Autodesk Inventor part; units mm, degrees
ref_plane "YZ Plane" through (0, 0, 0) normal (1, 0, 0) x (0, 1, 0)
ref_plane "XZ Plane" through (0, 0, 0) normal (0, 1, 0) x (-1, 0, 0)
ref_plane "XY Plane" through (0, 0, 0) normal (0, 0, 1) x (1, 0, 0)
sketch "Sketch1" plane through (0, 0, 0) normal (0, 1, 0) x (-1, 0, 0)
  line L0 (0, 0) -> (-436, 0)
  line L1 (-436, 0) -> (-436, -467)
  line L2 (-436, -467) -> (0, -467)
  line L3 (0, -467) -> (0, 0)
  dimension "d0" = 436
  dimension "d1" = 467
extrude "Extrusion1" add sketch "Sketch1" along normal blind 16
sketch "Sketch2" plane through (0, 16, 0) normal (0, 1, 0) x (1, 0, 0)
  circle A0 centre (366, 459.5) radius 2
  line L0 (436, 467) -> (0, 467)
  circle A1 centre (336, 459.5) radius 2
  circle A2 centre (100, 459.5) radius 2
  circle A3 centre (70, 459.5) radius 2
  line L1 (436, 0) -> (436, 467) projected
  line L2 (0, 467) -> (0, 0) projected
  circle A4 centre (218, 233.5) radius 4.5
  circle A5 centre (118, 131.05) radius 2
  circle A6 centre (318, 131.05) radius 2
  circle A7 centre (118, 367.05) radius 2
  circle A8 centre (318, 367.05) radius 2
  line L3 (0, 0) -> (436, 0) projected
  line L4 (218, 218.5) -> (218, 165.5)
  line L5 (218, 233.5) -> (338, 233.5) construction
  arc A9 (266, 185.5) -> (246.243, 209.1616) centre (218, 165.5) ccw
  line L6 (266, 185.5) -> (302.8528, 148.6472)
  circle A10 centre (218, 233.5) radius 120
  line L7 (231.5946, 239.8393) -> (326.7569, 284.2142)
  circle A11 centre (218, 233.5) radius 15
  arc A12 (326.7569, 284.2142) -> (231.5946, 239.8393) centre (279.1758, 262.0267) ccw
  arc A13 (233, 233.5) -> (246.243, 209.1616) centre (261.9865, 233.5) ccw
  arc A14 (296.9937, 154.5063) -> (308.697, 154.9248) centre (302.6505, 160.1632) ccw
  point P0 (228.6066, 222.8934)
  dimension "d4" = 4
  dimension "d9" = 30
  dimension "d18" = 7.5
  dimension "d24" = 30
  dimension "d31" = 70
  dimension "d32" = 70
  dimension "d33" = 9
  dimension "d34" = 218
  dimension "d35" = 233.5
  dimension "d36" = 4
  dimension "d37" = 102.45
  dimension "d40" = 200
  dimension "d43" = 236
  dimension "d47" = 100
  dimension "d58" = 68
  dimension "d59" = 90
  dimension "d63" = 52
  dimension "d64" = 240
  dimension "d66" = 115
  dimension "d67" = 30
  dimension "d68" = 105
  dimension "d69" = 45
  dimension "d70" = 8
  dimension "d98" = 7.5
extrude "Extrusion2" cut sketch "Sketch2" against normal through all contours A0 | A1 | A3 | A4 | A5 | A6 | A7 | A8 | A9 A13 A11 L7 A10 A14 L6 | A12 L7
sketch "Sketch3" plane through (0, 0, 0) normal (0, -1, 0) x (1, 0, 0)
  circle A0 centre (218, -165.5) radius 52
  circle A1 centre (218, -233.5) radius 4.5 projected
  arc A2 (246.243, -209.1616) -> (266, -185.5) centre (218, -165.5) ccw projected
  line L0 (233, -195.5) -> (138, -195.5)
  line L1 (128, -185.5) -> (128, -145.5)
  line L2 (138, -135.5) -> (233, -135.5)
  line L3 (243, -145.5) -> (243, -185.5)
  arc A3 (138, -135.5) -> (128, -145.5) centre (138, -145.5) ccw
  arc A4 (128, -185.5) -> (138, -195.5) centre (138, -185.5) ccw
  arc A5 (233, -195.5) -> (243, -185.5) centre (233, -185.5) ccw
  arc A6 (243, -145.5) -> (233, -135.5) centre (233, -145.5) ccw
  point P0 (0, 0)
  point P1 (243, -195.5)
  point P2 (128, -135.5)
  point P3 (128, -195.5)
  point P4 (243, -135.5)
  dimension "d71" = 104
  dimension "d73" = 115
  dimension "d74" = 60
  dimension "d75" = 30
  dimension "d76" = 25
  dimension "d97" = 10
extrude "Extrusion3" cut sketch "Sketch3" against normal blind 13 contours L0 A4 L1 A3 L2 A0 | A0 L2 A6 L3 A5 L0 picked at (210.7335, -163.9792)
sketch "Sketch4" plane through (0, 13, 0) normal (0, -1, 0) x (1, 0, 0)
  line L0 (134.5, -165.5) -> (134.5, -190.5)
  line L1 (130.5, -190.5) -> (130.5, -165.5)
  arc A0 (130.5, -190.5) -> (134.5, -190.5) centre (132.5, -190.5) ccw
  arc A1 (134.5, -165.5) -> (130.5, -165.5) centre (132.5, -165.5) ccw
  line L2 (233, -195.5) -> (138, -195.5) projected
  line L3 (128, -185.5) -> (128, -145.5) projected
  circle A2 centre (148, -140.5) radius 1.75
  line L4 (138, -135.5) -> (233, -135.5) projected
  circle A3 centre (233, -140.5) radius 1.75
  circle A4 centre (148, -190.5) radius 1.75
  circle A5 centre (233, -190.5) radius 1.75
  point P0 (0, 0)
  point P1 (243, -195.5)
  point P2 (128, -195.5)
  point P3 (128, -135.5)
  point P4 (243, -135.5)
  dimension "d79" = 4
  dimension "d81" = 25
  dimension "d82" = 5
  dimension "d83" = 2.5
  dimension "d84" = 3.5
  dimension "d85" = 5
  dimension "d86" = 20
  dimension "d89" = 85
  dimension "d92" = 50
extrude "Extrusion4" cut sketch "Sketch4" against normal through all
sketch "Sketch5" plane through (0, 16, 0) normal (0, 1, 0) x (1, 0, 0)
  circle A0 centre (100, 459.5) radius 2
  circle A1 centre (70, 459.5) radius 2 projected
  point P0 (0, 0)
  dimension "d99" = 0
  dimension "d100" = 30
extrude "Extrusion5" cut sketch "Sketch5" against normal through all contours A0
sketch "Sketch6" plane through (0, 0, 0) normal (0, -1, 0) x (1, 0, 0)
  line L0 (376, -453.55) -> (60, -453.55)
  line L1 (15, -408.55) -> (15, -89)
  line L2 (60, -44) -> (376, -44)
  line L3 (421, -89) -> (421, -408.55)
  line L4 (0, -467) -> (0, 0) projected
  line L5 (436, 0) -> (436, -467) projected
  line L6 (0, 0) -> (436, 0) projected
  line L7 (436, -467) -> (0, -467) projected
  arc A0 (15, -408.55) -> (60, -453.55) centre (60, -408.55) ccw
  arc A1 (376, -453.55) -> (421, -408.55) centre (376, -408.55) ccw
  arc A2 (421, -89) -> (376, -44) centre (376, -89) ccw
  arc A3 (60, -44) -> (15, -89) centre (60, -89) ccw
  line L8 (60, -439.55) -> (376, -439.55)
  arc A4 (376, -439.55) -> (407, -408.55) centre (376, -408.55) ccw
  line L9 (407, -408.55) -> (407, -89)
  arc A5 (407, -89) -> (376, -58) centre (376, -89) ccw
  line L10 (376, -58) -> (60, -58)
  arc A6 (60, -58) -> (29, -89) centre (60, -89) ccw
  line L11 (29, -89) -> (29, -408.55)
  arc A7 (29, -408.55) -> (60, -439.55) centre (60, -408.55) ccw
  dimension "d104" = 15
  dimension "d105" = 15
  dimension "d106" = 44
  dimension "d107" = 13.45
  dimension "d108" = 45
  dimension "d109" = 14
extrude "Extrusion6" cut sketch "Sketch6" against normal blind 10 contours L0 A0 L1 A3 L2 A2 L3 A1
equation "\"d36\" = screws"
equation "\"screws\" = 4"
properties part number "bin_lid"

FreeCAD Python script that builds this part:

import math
import FreeCAD as App
import Part
import Sketcher
Q = App.Units.Quantity


def add_polygon(sketch, points):
    """Adds a closed chain of lines whose ends are joined by coincident constraints."""
    first, n = sketch.GeometryCount, len(points)
    for a, b in zip(points, points[1:] + points[:1]):
        sketch.addGeometry(Part.LineSegment(App.Vector(*a, 0), App.Vector(*b, 0)), False)
    for i in range(n):
        sketch.addConstraint(Sketcher.Constraint("Coincident", first + i, 2, first + (i + 1) % n, 1))

doc = App.newDocument("Part")
body = doc.addObject("PartDesign::Body", "Body")

# Sketch on XZ plane
sketch1 = body.newObject("Sketcher::SketchObject", "Sketch")
sketch1.AttachmentSupport = (doc.getObject("XZ_Plane"), [""])
sketch1.MapMode = "FlatFace"
add_polygon(sketch1, [(0, -467), (0, 0), (436, 0), (436, -467)])  # lines 0-3
sketch1.addConstraint([
    Sketcher.Constraint("Vertical", 0),
    Sketcher.Constraint("Horizontal", 1),
    Sketcher.Constraint("Vertical", 2),
    Sketcher.Constraint("Horizontal", 3),
    Sketcher.Constraint("Coincident", 0, 2, -1, 1),
    Sketcher.Constraint("DistanceX", 1, 1, 1, 2, 436.0),
    Sketcher.Constraint("DistanceY", 0, 1, 0, 2, 467.0),
])
pad1 = body.newObject("PartDesign::Pad", "Pad")
pad1.Profile = sketch1
pad1.Length = 16
pad1.Reversed = True

# Sketch on XZ plane
sketch2 = body.newObject("Sketcher::SketchObject", "Sketch001")
sketch2.AttachmentSupport = (doc.getObject("XZ_Plane"), [""])
sketch2.MapMode = "FlatFace"
sketch2.AttachmentOffset = App.Placement(App.Vector(0, 0, -16), App.Rotation())
sketch2.addGeometry([
    Part.Circle(App.Vector(366, -459.5, 0), App.Vector(0, 0, 1), 2),  # 0
    Part.Circle(App.Vector(336, -459.5, 0), App.Vector(0, 0, 1), 2),  # 1
    Part.Circle(App.Vector(70, -459.5, 0), App.Vector(0, 0, 1), 2),  # 2
    Part.Circle(App.Vector(218, -233.5, 0), App.Vector(0, 0, 1), 4.5),  # 3
    Part.Circle(App.Vector(118, -131.1, 0), App.Vector(0, 0, 1), 2),  # 4
    Part.Circle(App.Vector(318, -131.1, 0), App.Vector(0, 0, 1), 2),  # 5
    Part.Circle(App.Vector(118, -367.1, 0), App.Vector(0, 0, 1), 2),  # 6
    Part.Circle(App.Vector(318, -367.1, 0), App.Vector(0, 0, 1), 2),  # 7
    Part.ArcOfCircle(Part.Circle(App.Vector(218, -165.5, 0), App.Vector(0, 0, 1), 52), math.radians(-57), math.radians(-23)),  # 8
    Part.LineSegment(App.Vector(266, -185.5, 0), App.Vector(297, -154.5, 0)),  # 9
    Part.ArcOfCircle(Part.Circle(App.Vector(302.7, -160.2, 0), App.Vector(0, 0, 1), 8), math.radians(41), math.radians(135)),  # 10
    Part.ArcOfCircle(Part.Circle(App.Vector(218, -233.5, 0), App.Vector(0, 0, 1), 120), math.radians(-25), math.radians(41)),  # 11
    Part.ArcOfCircle(Part.Circle(App.Vector(279.2, -262, 0), App.Vector(0, 0, 1), 52.5), math.radians(155), math.radians(335)),  # 12
    Part.ArcOfCircle(Part.Circle(App.Vector(218, -233.5, 0), App.Vector(0, 0, 1), 15), math.radians(-25), math.radians(0)),  # 13
    Part.ArcOfCircle(Part.Circle(App.Vector(262, -233.5, 0), App.Vector(0, 0, 1), 29), math.radians(123), math.radians(180)),  # 14
], False)
sketch2.addConstraint([
    Sketcher.Constraint("Coincident", 8, 2, 9, 1),
    Sketcher.Constraint("Tangent", 9, 2, 10, 2),
    Sketcher.Constraint("Tangent", 10, 1, 11, 2),
    Sketcher.Constraint("Tangent", 11, 1, 12, 2),
    Sketcher.Constraint("Tangent", 12, 1, 13, 1),
    Sketcher.Constraint("Tangent", 13, 2, 14, 2),
    Sketcher.Constraint("Tangent", 14, 1, 8, 1),
    Sketcher.Constraint("Coincident", 11, 3, 3, 3),
    Sketcher.Constraint("Coincident", 13, 3, 3, 3),
    Sketcher.Constraint("Equal", 0, 1),
    Sketcher.Constraint("Equal", 1, 2),
    Sketcher.Constraint("Equal", 2, 4),
    Sketcher.Constraint("Equal", 4, 5),
    Sketcher.Constraint("Equal", 5, 6),
    Sketcher.Constraint("Equal", 6, 7),
    Sketcher.Constraint("Horizontal", 0, 3, 1, 3),
    Sketcher.Constraint("Horizontal", 1, 3, 2, 3),
    Sketcher.Constraint("Horizontal", 4, 3, 5, 3),
    Sketcher.Constraint("Horizontal", 6, 3, 7, 3),
    Sketcher.Constraint("Horizontal", 13, 3, 14, 3),
    Sketcher.Constraint("Vertical", 4, 3, 6, 3),
    Sketcher.Constraint("Vertical", 5, 3, 7, 3),
    Sketcher.Constraint("Vertical", 3, 3, 8, 3),
    Sketcher.Constraint("Diameter", 0, 4.0),
    Sketcher.Constraint("Diameter", 3, 9.0),
    Sketcher.Constraint("Radius", 8, 52.0),
    Sketcher.Constraint("Radius", 10, 8.0),
    Sketcher.Constraint("Radius", 11, 120.0),
    Sketcher.Constraint("Radius", 13, 15.0),
    Sketcher.Constraint("Angle", 9, Q("45 deg")),
    Sketcher.Constraint("DistanceX", -1, 1, 2, 3, 70.0),
    Sketcher.Constraint("DistanceX", -1, 1, 3, 3, 218.0),
    Sketcher.Constraint("DistanceX", 1, 3, 0, 3, 30.0),
    Sketcher.Constraint("DistanceX", 4, 3, 3, 3, 100.0),
    Sketcher.Constraint("DistanceX", 4, 3, 1, 3, 218.0),
    Sketcher.Constraint("DistanceX", 3, 3, 5, 3, 100.0),
    Sketcher.Constraint("DistanceY", 6, 3, 4, 3, 236.0),
    Sketcher.Constraint("DistanceY", 3, 3, 8, 3, 68.0),
    Sketcher.Constraint("DistanceY", 3, 3, -1, 1, 233.5),
    Sketcher.Constraint("DistanceY", 3, 3, 4, 3, 102.45),
    Sketcher.Constraint("DistanceX", -1, 1, 8, 2, 266.0),
    Sketcher.Constraint("DistanceY", 1, 3, 3, 3, 226.0),
    Sketcher.Constraint("DistanceX", -1, 1, 11, 1, 326.757),
])
pocket1 = body.newObject("PartDesign::Pocket", "Pocket")
pocket1.Profile = sketch2
pocket1.Type = "ThroughAll"
pocket1.Reversed = True

# Sketch on XZ plane
sketch3 = body.newObject("Sketcher::SketchObject", "Sketch002")
sketch3.AttachmentSupport = (doc.getObject("XZ_Plane"), [""])
sketch3.MapMode = "FlatFace"
sketch3.addGeometry([
    Part.LineSegment(App.Vector(138, -196, 0), App.Vector(233, -196, 0)),  # 0
    Part.ArcOfCircle(Part.Circle(App.Vector(233, -186, 0), App.Vector(0, 0, 1), 10), math.radians(-90), math.radians(0)),  # 1
    Part.LineSegment(App.Vector(243, -186, 0), App.Vector(243, -146, 0)),  # 2
    Part.ArcOfCircle(Part.Circle(App.Vector(233, -146, 0), App.Vector(0, 0, 1), 10), math.radians(0), math.radians(90)),  # 3
    Part.LineSegment(App.Vector(233, -136, 0), App.Vector(138, -136, 0)),  # 4
    Part.ArcOfCircle(Part.Circle(App.Vector(138, -146, 0), App.Vector(0, 0, 1), 10), math.radians(90), math.radians(180)),  # 5
    Part.LineSegment(App.Vector(128, -146, 0), App.Vector(128, -186, 0)),  # 6
    Part.ArcOfCircle(Part.Circle(App.Vector(138, -186, 0), App.Vector(0, 0, 1), 10), math.radians(180), math.radians(270)),  # 7
], False)
sketch3.addConstraint([
    Sketcher.Constraint("Tangent", 0, 2, 1, 1),
    Sketcher.Constraint("Tangent", 1, 2, 2, 1),
    Sketcher.Constraint("Tangent", 2, 2, 3, 1),
    Sketcher.Constraint("Tangent", 3, 2, 4, 1),
    Sketcher.Constraint("Tangent", 4, 2, 5, 1),
    Sketcher.Constraint("Tangent", 5, 2, 6, 1),
    Sketcher.Constraint("Tangent", 6, 2, 7, 1),
    Sketcher.Constraint("Tangent", 7, 2, 0, 1),
    Sketcher.Constraint("Horizontal", 0),
    Sketcher.Constraint("Vertical", 2),
    Sketcher.Constraint("Horizontal", 4),
    Sketcher.Constraint("Vertical", 6),
    Sketcher.Constraint("Equal", 1, 3),
    Sketcher.Constraint("Equal", 3, 5),
    Sketcher.Constraint("Equal", 5, 7),
    Sketcher.Constraint("Radius", 1, 10.0),
    Sketcher.Constraint("DistanceY", 0, 2, 3, 2, 60.0),
    Sketcher.Constraint("DistanceX", 0, 1, 0, 2, 95.0),
    Sketcher.Constraint("DistanceX", -1, 1, 1, 3, 233.0),
    Sketcher.Constraint("DistanceY", 1, 3, -1, 1, 185.5),
])
pocket2 = body.newObject("PartDesign::Pocket", "Pocket001")
pocket2.Profile = sketch3
pocket2.Length = 13

# Sketch on XZ plane
sketch4 = body.newObject("Sketcher::SketchObject", "Sketch003")
sketch4.AttachmentSupport = (doc.getObject("XZ_Plane"), [""])
sketch4.MapMode = "FlatFace"
sketch4.AttachmentOffset = App.Placement(App.Vector(0, 0, -13), App.Rotation())
sketch4.addGeometry([
    Part.LineSegment(App.Vector(134.5, -190.5, 0), App.Vector(134.5, -165.5, 0)),  # 0
    Part.ArcOfCircle(Part.Circle(App.Vector(132.5, -165.5, 0), App.Vector(0, 0, 1), 2), math.radians(0), math.radians(180)),  # 1
    Part.LineSegment(App.Vector(130.5, -165.5, 0), App.Vector(130.5, -190.5, 0)),  # 2
    Part.ArcOfCircle(Part.Circle(App.Vector(132.5, -190.5, 0), App.Vector(0, 0, 1), 2), math.radians(180), math.radians(360)),  # 3
    Part.Circle(App.Vector(148, -140.5, 0), App.Vector(0, 0, 1), 1.8),  # 4
    Part.Circle(App.Vector(233, -140.5, 0), App.Vector(0, 0, 1), 1.8),  # 5
    Part.Circle(App.Vector(148, -190.5, 0), App.Vector(0, 0, 1), 1.8),  # 6
    Part.Circle(App.Vector(233, -190.5, 0), App.Vector(0, 0, 1), 1.8),  # 7
], False)
sketch4.addConstraint([
    Sketcher.Constraint("Tangent", 0, 2, 1, 1),
    Sketcher.Constraint("Tangent", 1, 2, 2, 1),
    Sketcher.Constraint("Tangent", 2, 2, 3, 1),
    Sketcher.Constraint("Tangent", 3, 2, 0, 1),
    Sketcher.Constraint("Vertical", 0),
    Sketcher.Constraint("Vertical", 2),
    Sketcher.Constraint("Equal", 4, 5),
    Sketcher.Constraint("Equal", 5, 6),
    Sketcher.Constraint("Equal", 6, 7),
    Sketcher.Constraint("Horizontal", 4, 3, 5, 3),
    Sketcher.Constraint("Horizontal", 3, 3, 6, 3),
    Sketcher.Constraint("Horizontal", 6, 3, 7, 3),
    Sketcher.Constraint("Vertical", 4, 3, 6, 3),
    Sketcher.Constraint("Vertical", 5, 3, 7, 3),
    Sketcher.Constraint("Radius", 1, 2.0),
    Sketcher.Constraint("Diameter", 4, 3.5),
    Sketcher.Constraint("DistanceY", 0, 1, 0, 2, 25.0),
    Sketcher.Constraint("DistanceY", 1, 3, 4, 3, 25.0),
    Sketcher.Constraint("DistanceX", 4, 3, 5, 3, 85.0),
    Sketcher.Constraint("DistanceX", -1, 1, 4, 3, 148.0),
    Sketcher.Constraint("DistanceX", -1, 1, 1, 3, 132.5),
    Sketcher.Constraint("DistanceY", 1, 3, -1, 1, 165.5),
])
pocket3 = body.newObject("PartDesign::Pocket", "Pocket002")
pocket3.Profile = sketch4
pocket3.Type = "ThroughAll"

# Sketch on XZ plane
sketch5 = body.newObject("Sketcher::SketchObject", "Sketch004")
sketch5.AttachmentSupport = (doc.getObject("XZ_Plane"), [""])
sketch5.MapMode = "FlatFace"
sketch5.AttachmentOffset = App.Placement(App.Vector(0, 0, -16), App.Rotation())
sketch5.addGeometry(Part.Circle(App.Vector(100, -459.5, 0), App.Vector(0, 0, 1), 2), False)
sketch5.addConstraint([
    Sketcher.Constraint("Diameter", 0, 4.0),
    Sketcher.Constraint("DistanceX", -1, 1, 0, 3, 100.0),
    Sketcher.Constraint("DistanceY", 0, 3, -1, 1, 459.5),
])
pocket4 = body.newObject("PartDesign::Pocket", "Pocket003")
pocket4.Profile = sketch5
pocket4.Type = "ThroughAll"
pocket4.Reversed = True

# Sketch on XZ plane
sketch6 = body.newObject("Sketcher::SketchObject", "Sketch005")
sketch6.AttachmentSupport = (doc.getObject("XZ_Plane"), [""])
sketch6.MapMode = "FlatFace"
sketch6.addGeometry([
    Part.LineSegment(App.Vector(60, -454, 0), App.Vector(376, -454, 0)),  # 0
    Part.ArcOfCircle(Part.Circle(App.Vector(376, -409, 0), App.Vector(0, 0, 1), 45), math.radians(-90), math.radians(0)),  # 1
    Part.LineSegment(App.Vector(421, -409, 0), App.Vector(421, -89, 0)),  # 2
    Part.ArcOfCircle(Part.Circle(App.Vector(376, -89, 0), App.Vector(0, 0, 1), 45), math.radians(0), math.radians(90)),  # 3
    Part.LineSegment(App.Vector(376, -44, 0), App.Vector(60, -44, 0)),  # 4
    Part.ArcOfCircle(Part.Circle(App.Vector(60, -89, 0), App.Vector(0, 0, 1), 45), math.radians(90), math.radians(180)),  # 5
    Part.LineSegment(App.Vector(15, -89, 0), App.Vector(15, -409, 0)),  # 6
    Part.ArcOfCircle(Part.Circle(App.Vector(60, -409, 0), App.Vector(0, 0, 1), 45), math.radians(180), math.radians(270)),  # 7
    Part.LineSegment(App.Vector(376, -440, 0), App.Vector(60, -440, 0)),  # 8
    Part.ArcOfCircle(Part.Circle(App.Vector(60, -409, 0), App.Vector(0, 0, 1), 31), math.radians(180), math.radians(270)),  # 9
    Part.LineSegment(App.Vector(29, -409, 0), App.Vector(29, -89, 0)),  # 10
    Part.ArcOfCircle(Part.Circle(App.Vector(60, -89, 0), App.Vector(0, 0, 1), 31), math.radians(90), math.radians(180)),  # 11
    Part.LineSegment(App.Vector(60, -58, 0), App.Vector(376, -58, 0)),  # 12
    Part.ArcOfCircle(Part.Circle(App.Vector(376, -89, 0), App.Vector(0, 0, 1), 31), math.radians(0), math.radians(90)),  # 13
    Part.LineSegment(App.Vector(407, -89, 0), App.Vector(407, -409, 0)),  # 14
    Part.ArcOfCircle(Part.Circle(App.Vector(376, -409, 0), App.Vector(0, 0, 1), 31), math.radians(-90), math.radians(0)),  # 15
], False)
sketch6.addConstraint([
    Sketcher.Constraint("Tangent", 0, 2, 1, 1),
    Sketcher.Constraint("Tangent", 1, 2, 2, 1),
    Sketcher.Constraint("Tangent", 2, 2, 3, 1),
    Sketcher.Constraint("Tangent", 3, 2, 4, 1),
    Sketcher.Constraint("Tangent", 4, 2, 5, 1),
    Sketcher.Constraint("Tangent", 5, 2, 6, 1),
    Sketcher.Constraint("Tangent", 6, 2, 7, 1),
    Sketcher.Constraint("Tangent", 7, 2, 0, 1),
    Sketcher.Constraint("Tangent", 8, 2, 9, 2),
    Sketcher.Constraint("Tangent", 9, 1, 10, 1),
    Sketcher.Constraint("Tangent", 10, 2, 11, 2),
    Sketcher.Constraint("Tangent", 11, 1, 12, 1),
    Sketcher.Constraint("Tangent", 12, 2, 13, 2),
    Sketcher.Constraint("Tangent", 13, 1, 14, 1),
    Sketcher.Constraint("Tangent", 14, 2, 15, 2),
    Sketcher.Constraint("Tangent", 15, 1, 8, 1),
    Sketcher.Constraint("Horizontal", 0),
    Sketcher.Constraint("Vertical", 2),
    Sketcher.Constraint("Horizontal", 4),
    Sketcher.Constraint("Vertical", 6),
    Sketcher.Constraint("Horizontal", 8),
    Sketcher.Constraint("Vertical", 10),
    Sketcher.Constraint("Horizontal", 12),
    Sketcher.Constraint("Vertical", 14),
    Sketcher.Constraint("Coincident", 9, 3, 7, 3),
    Sketcher.Constraint("Coincident", 11, 3, 5, 3),
    Sketcher.Constraint("Coincident", 13, 3, 3, 3),
    Sketcher.Constraint("Equal", 1, 3),
    Sketcher.Constraint("Equal", 3, 5),
    Sketcher.Constraint("Equal", 5, 7),
    Sketcher.Constraint("Equal", 13, 15),
    Sketcher.Constraint("Radius", 1, 45.0),
    Sketcher.Constraint("DistanceY", 3, 2, -1, 1, 44.0),
    Sketcher.Constraint("DistanceX", -1, 1, 5, 2, 15.0),
    Sketcher.Constraint("Radius", 9, 31.0),
    Sketcher.Constraint("DistanceX", 0, 1, 0, 2, 316.0),
    Sketcher.Constraint("DistanceY", 2, 1, 2, 2, 319.55),
])
pocket5 = body.newObject("PartDesign::Pocket", "Pocket004")
pocket5.Profile = sketch6
pocket5.Length = 10

doc.recompute()
